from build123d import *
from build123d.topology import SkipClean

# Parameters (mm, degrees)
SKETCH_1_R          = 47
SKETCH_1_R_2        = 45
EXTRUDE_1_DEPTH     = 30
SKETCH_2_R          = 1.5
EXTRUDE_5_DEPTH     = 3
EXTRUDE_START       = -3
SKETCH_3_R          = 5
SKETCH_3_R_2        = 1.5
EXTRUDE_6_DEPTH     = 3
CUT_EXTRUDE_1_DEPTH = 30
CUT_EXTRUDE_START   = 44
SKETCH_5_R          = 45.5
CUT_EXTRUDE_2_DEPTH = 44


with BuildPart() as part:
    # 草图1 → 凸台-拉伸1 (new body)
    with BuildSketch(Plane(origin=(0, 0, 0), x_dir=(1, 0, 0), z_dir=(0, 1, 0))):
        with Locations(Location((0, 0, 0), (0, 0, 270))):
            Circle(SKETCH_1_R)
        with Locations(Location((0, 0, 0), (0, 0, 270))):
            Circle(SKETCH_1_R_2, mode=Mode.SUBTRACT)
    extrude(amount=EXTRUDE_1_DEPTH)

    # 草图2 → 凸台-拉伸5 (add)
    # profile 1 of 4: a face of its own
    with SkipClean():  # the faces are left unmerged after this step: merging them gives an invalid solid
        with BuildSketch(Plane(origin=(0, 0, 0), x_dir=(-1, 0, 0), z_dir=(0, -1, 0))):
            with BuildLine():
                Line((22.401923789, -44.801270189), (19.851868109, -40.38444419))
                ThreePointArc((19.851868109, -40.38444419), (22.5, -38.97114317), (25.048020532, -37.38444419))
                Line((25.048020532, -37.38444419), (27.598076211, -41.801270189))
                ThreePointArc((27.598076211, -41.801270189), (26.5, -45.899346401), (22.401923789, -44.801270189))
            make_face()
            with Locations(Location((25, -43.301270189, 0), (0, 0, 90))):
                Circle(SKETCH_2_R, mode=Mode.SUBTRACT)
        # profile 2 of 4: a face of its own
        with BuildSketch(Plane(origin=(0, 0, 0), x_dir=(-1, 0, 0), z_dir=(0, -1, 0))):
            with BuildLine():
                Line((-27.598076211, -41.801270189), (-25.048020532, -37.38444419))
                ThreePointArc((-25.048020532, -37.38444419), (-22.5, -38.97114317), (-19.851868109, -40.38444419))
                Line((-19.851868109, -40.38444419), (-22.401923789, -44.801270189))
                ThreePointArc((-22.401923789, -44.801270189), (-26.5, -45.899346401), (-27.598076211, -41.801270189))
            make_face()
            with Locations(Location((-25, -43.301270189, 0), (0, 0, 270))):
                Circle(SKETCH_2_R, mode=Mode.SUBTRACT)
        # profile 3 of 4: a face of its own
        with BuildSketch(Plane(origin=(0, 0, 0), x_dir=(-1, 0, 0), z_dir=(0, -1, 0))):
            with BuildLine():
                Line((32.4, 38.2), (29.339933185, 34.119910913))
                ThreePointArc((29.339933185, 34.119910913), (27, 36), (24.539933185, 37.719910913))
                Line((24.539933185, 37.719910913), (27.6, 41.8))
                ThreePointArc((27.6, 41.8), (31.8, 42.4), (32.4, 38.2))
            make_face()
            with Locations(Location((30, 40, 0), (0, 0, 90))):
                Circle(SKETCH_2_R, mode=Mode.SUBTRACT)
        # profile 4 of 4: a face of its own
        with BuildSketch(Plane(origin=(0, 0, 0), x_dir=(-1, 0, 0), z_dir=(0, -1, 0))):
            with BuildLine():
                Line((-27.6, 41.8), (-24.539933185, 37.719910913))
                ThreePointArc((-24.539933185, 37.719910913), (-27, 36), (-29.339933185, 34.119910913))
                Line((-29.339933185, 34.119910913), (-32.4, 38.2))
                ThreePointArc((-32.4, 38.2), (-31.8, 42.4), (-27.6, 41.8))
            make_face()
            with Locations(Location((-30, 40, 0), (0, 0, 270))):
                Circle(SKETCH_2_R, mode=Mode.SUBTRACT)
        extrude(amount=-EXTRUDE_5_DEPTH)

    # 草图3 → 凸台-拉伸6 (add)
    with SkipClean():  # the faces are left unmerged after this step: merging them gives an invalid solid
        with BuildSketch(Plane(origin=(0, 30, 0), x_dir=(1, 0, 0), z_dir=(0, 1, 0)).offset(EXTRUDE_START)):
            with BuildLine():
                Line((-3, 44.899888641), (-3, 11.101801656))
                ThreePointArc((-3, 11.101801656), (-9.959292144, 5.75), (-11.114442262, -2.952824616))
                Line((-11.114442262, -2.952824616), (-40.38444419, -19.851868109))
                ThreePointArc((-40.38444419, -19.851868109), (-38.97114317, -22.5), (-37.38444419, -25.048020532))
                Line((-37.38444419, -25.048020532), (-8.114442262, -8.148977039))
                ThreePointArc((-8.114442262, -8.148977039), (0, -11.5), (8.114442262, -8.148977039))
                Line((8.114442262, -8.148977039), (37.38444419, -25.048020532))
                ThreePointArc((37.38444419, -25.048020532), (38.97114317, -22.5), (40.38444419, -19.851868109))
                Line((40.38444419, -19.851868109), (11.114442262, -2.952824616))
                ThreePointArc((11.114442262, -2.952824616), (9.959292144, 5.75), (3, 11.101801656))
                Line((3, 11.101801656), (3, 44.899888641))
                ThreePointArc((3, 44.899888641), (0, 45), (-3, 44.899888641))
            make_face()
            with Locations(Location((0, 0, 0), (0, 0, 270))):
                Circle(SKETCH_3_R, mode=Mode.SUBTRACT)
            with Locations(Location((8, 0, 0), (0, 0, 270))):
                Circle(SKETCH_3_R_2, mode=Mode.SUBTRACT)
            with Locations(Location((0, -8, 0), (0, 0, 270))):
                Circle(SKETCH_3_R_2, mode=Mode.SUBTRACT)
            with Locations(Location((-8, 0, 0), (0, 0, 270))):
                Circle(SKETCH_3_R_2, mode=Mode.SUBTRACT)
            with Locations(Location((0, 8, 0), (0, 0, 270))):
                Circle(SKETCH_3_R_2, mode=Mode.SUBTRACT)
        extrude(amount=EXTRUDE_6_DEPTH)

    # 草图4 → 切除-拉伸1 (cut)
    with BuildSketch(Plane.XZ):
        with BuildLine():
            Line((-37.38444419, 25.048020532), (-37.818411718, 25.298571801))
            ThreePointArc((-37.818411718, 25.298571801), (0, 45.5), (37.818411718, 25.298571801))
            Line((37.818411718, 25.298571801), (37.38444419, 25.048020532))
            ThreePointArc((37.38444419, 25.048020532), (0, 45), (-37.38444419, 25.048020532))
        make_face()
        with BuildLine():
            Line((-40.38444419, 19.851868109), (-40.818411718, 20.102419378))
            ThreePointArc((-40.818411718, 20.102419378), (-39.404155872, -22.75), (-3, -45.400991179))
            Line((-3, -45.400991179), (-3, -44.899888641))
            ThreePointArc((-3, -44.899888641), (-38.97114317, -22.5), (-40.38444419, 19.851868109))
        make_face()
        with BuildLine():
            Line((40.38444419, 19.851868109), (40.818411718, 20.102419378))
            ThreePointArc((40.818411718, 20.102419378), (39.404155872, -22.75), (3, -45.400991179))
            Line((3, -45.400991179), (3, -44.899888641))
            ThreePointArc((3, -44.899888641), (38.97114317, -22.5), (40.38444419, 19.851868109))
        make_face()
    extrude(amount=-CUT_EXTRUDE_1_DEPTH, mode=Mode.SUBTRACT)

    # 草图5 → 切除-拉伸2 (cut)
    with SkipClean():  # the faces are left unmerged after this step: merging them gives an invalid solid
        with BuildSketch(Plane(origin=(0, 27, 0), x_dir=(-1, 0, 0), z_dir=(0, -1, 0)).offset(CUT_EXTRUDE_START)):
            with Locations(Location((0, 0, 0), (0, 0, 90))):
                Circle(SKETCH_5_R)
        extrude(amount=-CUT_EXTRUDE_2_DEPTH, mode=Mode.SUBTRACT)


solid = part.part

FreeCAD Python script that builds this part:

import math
import FreeCAD as App
import Part
import Sketcher
Q = App.Units.Quantity

doc = App.newDocument("Part")
params = doc.addObject("Spreadsheet::Sheet", "Params")
for row, (alias, value) in enumerate([
    ("sketch1_diameter", "94 mm"),
    ("sketch1_diameter2", "90 mm"),
    ("pad1_length", "30 mm"),
    ("sketch2_diameter", "3 mm"),
    ("sketch2_radius", "3 mm"),
    ("sketch2_radius2", "45 mm"),
    ("pad2_length", "3 mm"),
    ("sketch3_diameter", "3 mm"),
    ("sketch3_diameter2", "10 mm"),
    ("sketch3_radius", "45 mm"),
    ("sketch3_radius2", "11.5 mm"),
    ("pad3_length", "3 mm"),
    ("sketch4_radius", "45 mm"),
    ("sketch4_radius2", "45.5 mm"),
    ("pocket1_length", "30 mm"),
    ("sketch5_diameter", "91 mm"),
    ("pocket2_length", "44 mm"),
], start=1):
    params.set(f"A{row}", alias)
    params.set(f"B{row}", "=" + value)
    params.setAlias(f"B{row}", alias)

body = doc.addObject("PartDesign::Body", "Body")

# Sketch on XZ plane
sketch1 = doc.addObject("Sketcher::SketchObject", "Sketch")
body.addObject(sketch1)
sketch1.AttachmentSupport = (doc.XZ_Plane, [""])
sketch1.MapMode = "FlatFace"
sketch1.addGeometry([
    Part.Circle(App.Vector(0, 0, 0), App.Vector(0, 0, 1), 47),
    Part.Circle(App.Vector(0, 0, 0), App.Vector(0, 0, 1), 45),
], False)
sketch1.addConstraint([
    Sketcher.Constraint("Coincident", 0, 3, -1, 1),
    Sketcher.Constraint("Coincident", 1, 3, -1, 1),
    Sketcher.Constraint("Diameter", 0, 94.0),
    Sketcher.Constraint("Diameter", 1, 90.0),
])
sketch1.setExpression("Constraints[2]", "Params.sketch1_diameter")
sketch1.setExpression("Constraints[3]", "Params.sketch1_diameter2")
pad1 = doc.addObject("PartDesign::Pad", "Pad")
body.addObject(pad1)
pad1.Profile = sketch1
pad1.setExpression("Length", "Params.pad1_length")
pad1.Reversed = True

# Sketch on XZ plane
sketch2 = doc.addObject("Sketcher::SketchObject", "Sketch001")
body.addObject(sketch2)
sketch2.AttachmentSupport = (doc.XZ_Plane, [""])
sketch2.MapMode = "FlatFace"
sketch2.addGeometry([
    Part.LineSegment(App.Vector(-19.851868, 40.384444, 0), App.Vector(-22.401924, 44.80127, 0)),  # 0
    Part.ArcOfCircle(Part.Circle(App.Vector(-25, 43.30127, 0), App.Vector(0, 0, 1), 3), math.radians(30), math.radians(210)),  # 1
    Part.LineSegment(App.Vector(-27.598076, 41.80127, 0), App.Vector(-25.048021, 37.384444, 0)),  # 2
    Part.ArcOfCircle(Part.Circle(App.Vector(0, 0, 0), App.Vector(0, 0, 1), 45), math.radians(116.177446), math.radians(123.822554)),  # 3
    Part.Circle(App.Vector(-25, 43.30127, 0), App.Vector(0, 0, 1), 1.5),  # 4
    Part.LineSegment(App.Vector(25.048021, 37.384444, 0), App.Vector(27.598076, 41.80127, 0)),  # 5
    Part.ArcOfCircle(Part.Circle(App.Vector(25, 43.30127, 0), App.Vector(0, 0, 1), 3), math.radians(-30), math.radians(150)),  # 6
    Part.LineSegment(App.Vector(22.401924, 44.80127, 0), App.Vector(19.851868, 40.384444, 0)),  # 7
    Part.ArcOfCircle(Part.Circle(App.Vector(0, 0, 0), App.Vector(0, 0, 1), 45), math.radians(56.177446), math.radians(63.822554)),  # 8
    Part.Circle(App.Vector(25, 43.30127, 0), App.Vector(0, 0, 1), 1.5),  # 9
    Part.LineSegment(App.Vector(-29.339933, -34.119911, 0), App.Vector(-32.4, -38.2, 0)),  # 10
    Part.ArcOfCircle(Part.Circle(App.Vector(-30, -40, 0), App.Vector(0, 0, 1), 3), math.radians(143.130102), math.radians(323.130102)),  # 11
    Part.LineSegment(App.Vector(-27.6, -41.8, 0), App.Vector(-24.539933, -37.719911, 0)),  # 12
    Part.ArcOfCircle(Part.Circle(App.Vector(0, 0, 0), App.Vector(0, 0, 1), 45), math.radians(-130.692451), math.radians(-123.047344)),  # 13
    Part.Circle(App.Vector(-30, -40, 0), App.Vector(0, 0, 1), 1.5),  # 14
    Part.LineSegment(App.Vector(24.539933, -37.719911, 0), App.Vector(27.6, -41.8, 0)),  # 15
    Part.ArcOfCircle(Part.Circle(App.Vector(30, -40, 0), App.Vector(0, 0, 1), 3), math.radians(-143.130102), math.radians(36.869898)),  # 16
    Part.LineSegment(App.Vector(32.4, -38.2, 0), App.Vector(29.339933, -34.119911, 0)),  # 17
    Part.ArcOfCircle(Part.Circle(App.Vector(0, 0, 0), App.Vector(0, 0, 1), 45), math.radians(-56.952656), math.radians(-49.307549)),  # 18
    Part.Circle(App.Vector(30, -40, 0), App.Vector(0, 0, 1), 1.5),  # 19
], False)
sketch2.addConstraint([
    Sketcher.Constraint("Tangent", 0, 2, 1, 1),
    Sketcher.Constraint("Tangent", 1, 2, 2, 1),
    Sketcher.Constraint("Coincident", 2, 2, 3, 2),
    Sketcher.Constraint("Coincident", 3, 1, 0, 1),
    Sketcher.Constraint("Tangent", 5, 2, 6, 1),
    Sketcher.Constraint("Tangent", 6, 2, 7, 1),
    Sketcher.Constraint("Coincident", 7, 2, 8, 2),
    Sketcher.Constraint("Coincident", 8, 1, 5, 1),
    Sketcher.Constraint("Tangent", 10, 2, 11, 1),
    Sketcher.Constraint("Tangent", 11, 2, 12, 1),
    Sketcher.Constraint("Coincident", 12, 2, 13, 2),
    Sketcher.Constraint("Coincident", 13, 1, 10, 1),
    Sketcher.Constraint("Tangent", 15, 2, 16, 1),
    Sketcher.Constraint("Tangent", 16, 2, 17, 1),
    Sketcher.Constraint("Coincident", 17, 2, 18, 2),
    Sketcher.Constraint("Coincident", 18, 1, 15, 1),
    Sketcher.Constraint("Coincident", 3, 3, -1, 1),
    Sketcher.Constraint("Coincident", 8, 3, -1, 1),
    Sketcher.Constraint("Coincident", 13, 3, -1, 1),
    Sketcher.Constraint("Coincident", 18, 3, -1, 1),
    Sketcher.Constraint("Coincident", 4, 3, 1, 3),
    Sketcher.Constraint("Coincident", 9, 3, 6, 3),
    Sketcher.Constraint("Coincident", 14, 3, 11, 3),
    Sketcher.Constraint("Coincident", 19, 3, 16, 3),
    Sketcher.Constraint("Equal", 1, 6),
    Sketcher.Constraint("Equal", 3, 8),
    Sketcher.Constraint("Equal", 4, 9),
    Sketcher.Constraint("Equal", 6, 11),
    Sketcher.Constraint("Equal", 8, 13),
    Sketcher.Constraint("Equal", 9, 14),
    Sketcher.Constraint("Equal", 11, 16),
    Sketcher.Constraint("Equal", 13, 18),
    Sketcher.Constraint("Equal", 14, 19),
    Sketcher.Constraint("Symmetric", 1, 3, 6, 3, -2),
    Sketcher.Constraint("Symmetric", 11, 3, 16, 3, -2),
    Sketcher.Constraint("Parallel", 0, 2),
    Sketcher.Constraint("Parallel", 5, 7),
    Sketcher.Constraint("Parallel", 10, 12),
    Sketcher.Constraint("Parallel", 15, 17),
    Sketcher.Constraint("Horizontal", 1, 2, 5, 2),
    Sketcher.Constraint("Horizontal", 11, 2, 15, 2),
    Sketcher.Constraint("Equal", 0, 2),
    Sketcher.Constraint("Equal", 7, 10),
    Sketcher.Constraint("Equal", 10, 12),
    Sketcher.Constraint("Diameter", 4, 3.0),
    Sketcher.Constraint("Radius", 1, 3.0),
    Sketcher.Constraint("Radius", 3, 45.0),
    Sketcher.Constraint("Angle", 0, Q("120 deg")),
    Sketcher.Constraint("DistanceX", 1, 3, -1, 1, 25.0),
    Sketcher.Constraint("DistanceX", 11, 3, -1, 1, 30.0),
])
sketch2.setExpression("Constraints[44]", "Params.sketch2_diameter")
sketch2.setExpression("Constraints[45]", "Params.sketch2_radius")
sketch2.setExpression("Constraints[46]", "Params.sketch2_radius2")
pad2 = doc.addObject("PartDesign::Pad", "Pad001")
body.addObject(pad2)
pad2.Profile = sketch2
pad2.setExpression("Length", "Params.pad2_length")
pad2.Reversed = True

# Sketch on XZ plane
sketch3 = doc.addObject("Sketcher::SketchObject", "Sketch002")
body.addObject(sketch3)
sketch3.AttachmentSupport = (doc.XZ_Plane, [""])
sketch3.MapMode = "FlatFace"
sketch3.AttachmentOffset = App.Placement(App.Vector(0, 0, -27), App.Rotation())
sketch3.addGeometry([
    Part.LineSegment(App.Vector(-3, -44.899889, 0), App.Vector(-3, -11.101802, 0)),  # 0
    Part.ArcOfCircle(Part.Circle(App.Vector(0, 0, 0), App.Vector(0, 0, 1), 11.5), math.radians(165.121665), math.radians(254.878335)),  # 1
    Part.LineSegment(App.Vector(-11.114442, 2.952825, 0), App.Vector(-40.384444, 19.851868, 0)),  # 2
    Part.ArcOfCircle(Part.Circle(App.Vector(0, 0, 0), App.Vector(0, 0, 1), 45), math.radians(146.177446), math.radians(153.822554)),  # 3
    Part.LineSegment(App.Vector(-37.384444, 25.048021, 0), App.Vector(-8.114442, 8.148977, 0)),  # 4
    Part.ArcOfCircle(Part.Circle(App.Vector(0, 0, 0), App.Vector(0, 0, 1), 11.5), math.radians(45.121665), math.radians(134.878335)),  # 5
    Part.LineSegment(App.Vector(8.114442, 8.148977, 0), App.Vector(37.384444, 25.048021, 0)),  # 6
    Part.ArcOfCircle(Part.Circle(App.Vector(0, 0, 0), App.Vector(0, 0, 1), 45), math.radians(26.177446), math.radians(33.822554)),  # 7
    Part.LineSegment(App.Vector(40.384444, 19.851868, 0), App.Vector(11.114442, 2.952825, 0)),  # 8
    Part.ArcOfCircle(Part.Circle(App.Vector(0, 0, 0), App.Vector(0, 0, 1), 11.5), math.radians(-74.878335), math.radians(14.878335)),  # 9
    Part.LineSegment(App.Vector(3, -11.101802, 0), App.Vector(3, -44.899889, 0)),  # 10
    Part.ArcOfCircle(Part.Circle(App.Vector(0, 0, 0), App.Vector(0, 0, 1), 45), math.radians(-93.822554), math.radians(-86.177446)),  # 11
    Part.Circle(App.Vector(0, 8, 0), App.Vector(0, 0, 1), 1.5),  # 12
    Part.Circle(App.Vector(-8, 0, 0), App.Vector(0, 0, 1), 1.5),  # 13
    Part.Circle(App.Vector(0, 0, 0), App.Vector(0, 0, 1), 5),  # 14
    Part.Circle(App.Vector(8, 0, 0), App.Vector(0, 0, 1), 1.5),  # 15
    Part.Circle(App.Vector(0, -8, 0), App.Vector(0, 0, 1), 1.5),  # 16
], False)
sketch3.addConstraint([
    Sketcher.Constraint("Coincident", 0, 2, 1, 2),
    Sketcher.Constraint("Coincident", 1, 1, 2, 1),
    Sketcher.Constraint("Coincident", 2, 2, 3, 2),
    Sketcher.Constraint("Coincident", 3, 1, 4, 1),
    Sketcher.Constraint("Coincident", 4, 2, 5, 2),
    Sketcher.Constraint("Coincident", 5, 1, 6, 1),
    Sketcher.Constraint("Coincident", 6, 2, 7, 2),
    Sketcher.Constraint("Coincident", 7, 1, 8, 1),
    Sketcher.Constraint("Coincident", 8, 2, 9, 2),
    Sketcher.Constraint("Coincident", 9, 1, 10, 1),
    Sketcher.Constraint("Coincident", 10, 2, 11, 2),
    Sketcher.Constraint("Coincident", 11, 1, 0, 1),
    Sketcher.Constraint("Vertical", 0),
    Sketcher.Constraint("Vertical", 10),
    Sketcher.Constraint("Coincident", 1, 3, -1, 1),
    Sketcher.Constraint("Coincident", 3, 3, -1, 1),
    Sketcher.Constraint("Coincident", 5, 3, -1, 1),
    Sketcher.Constraint("Coincident", 7, 3, -1, 1),
    Sketcher.Constraint("Coincident", 9, 3, -1, 1),
    Sketcher.Constraint("Coincident", 11, 3, -1, 1),
    Sketcher.Constraint("Coincident", 14, 3, -1, 1),
    Sketcher.Constraint("Equal", 1, 5),
    Sketcher.Constraint("Equal", 3, 7),
    Sketcher.Constraint("Equal", 5, 9),
    Sketcher.Constraint("Equal", 7, 11),
    Sketcher.Constraint("Equal", 12, 13),
    Sketcher.Constraint("Equal", 13, 15),
    Sketcher.Constraint("Equal", 15, 16),
    Sketcher.Constraint("Symmetric", 13, 3, 15, 3, -1, 1),
    Sketcher.Constraint("Symmetric", 12, 3, 16, 3, -1, 1),
    Sketcher.Constraint("PointOnObject", 12, 3, -2),
    Sketcher.Constraint("PointOnObject", 13, 3, -1),
    Sketcher.Constraint("Parallel", 2, 4),
    Sketcher.Constraint("Parallel", 6, 8),
    Sketcher.Constraint("Horizontal", 4, 2, 5, 1),
    Sketcher.Constraint("Horizontal", 3, 1, 6, 2),
    Sketcher.Constraint("Horizontal", 2, 2, 7, 1),
    Sketcher.Constraint("Horizontal", 0, 2, 9, 1),
    Sketcher.Constraint("Equal", 2, 4),
    Sketcher.Constraint("Diameter", 12, 3.0),
    Sketcher.Constraint("Diameter", 14, 10.0),
    Sketcher.Constraint("Radius", 3, 45.0),
    Sketcher.Constraint("Radius", 1, 11.5),
    Sketcher.Constraint("Angle", 2, Q("150 deg")),
    Sketcher.Constraint("DistanceY", -1, 1, 12, 3, 8.0),
    Sketcher.Constraint("DistanceX", 13, 3, -1, 1, 8.0),
    Sketcher.Constraint("DistanceX", 0, 2, -1, 1, 3.0),
    Sketcher.Constraint("DistanceX", 2, 2, 3, 1, 3.0),
])
sketch3.setExpression("Constraints[39]", "Params.sketch3_diameter")
sketch3.setExpression("Constraints[40]", "Params.sketch3_diameter2")
sketch3.setExpression("Constraints[41]", "Params.sketch3_radius")
sketch3.setExpression("Constraints[42]", "Params.sketch3_radius2")
pad3 = doc.addObject("PartDesign::Pad", "Pad002")
body.addObject(pad3)
pad3.Profile = sketch3
pad3.setExpression("Length", "Params.pad3_length")
pad3.Reversed = True

# Sketch on XZ plane
sketch4 = doc.addObject("Sketcher::SketchObject", "Sketch003")
body.addObject(sketch4)
sketch4.AttachmentSupport = (doc.XZ_Plane, [""])
sketch4.MapMode = "FlatFace"
sketch4.addGeometry([
    Part.LineSegment(App.Vector(-37.818412, 25.298572, 0), App.Vector(-37.384444, 25.048021, 0)),  # 0
    Part.ArcOfCircle(Part.Circle(App.Vector(0, 0, 0), App.Vector(0, 0, 1), 45), math.radians(33.822554), math.radians(146.177446)),  # 1
    Part.LineSegment(App.Vector(37.384444, 25.048021, 0), App.Vector(37.818412, 25.298572, 0)),  # 2
    Part.ArcOfCircle(Part.Circle(App.Vector(0, 0, 0), App.Vector(0, 0, 1), 45.5), math.radians(33.780486), math.radians(146.219514)),  # 3
    Part.LineSegment(App.Vector(-40.384444, 19.851868, 0), App.Vector(-40.818412, 20.102419, 0)),  # 4
    Part.ArcOfCircle(Part.Circle(App.Vector(0, 0, 0), App.Vector(0, 0, 1), 45.5), math.radians(153.780486), math.radians(266.219514)),  # 5
    Part.LineSegment(App.Vector(-3, -45.400991, 0), App.Vector(-3, -44.899889, 0)),  # 6
    Part.ArcOfCircle(Part.Circle(App.Vector(0, 0, 0), App.Vector(0, 0, 1), 45), math.radians(153.822554), math.radians(266.177446)),  # 7
    Part.LineSegment(App.Vector(40.818412, 20.102419, 0), App.Vector(40.384444, 19.851868, 0)),  # 8
    Part.ArcOfCircle(Part.Circle(App.Vector(0, 0, 0), App.Vector(0, 0, 1), 45), math.radians(-86.177446), math.radians(26.177446)),  # 9
    Part.LineSegment(App.Vector(3, -44.899889, 0), App.Vector(3, -45.400991, 0)),  # 10
    Part.ArcOfCircle(Part.Circle(App.Vector(0, 0, 0), App.Vector(0, 0, 1), 45.5), math.radians(-86.219514), math.radians(26.219514)),  # 11
], False)
sketch4.addConstraint([
    Sketcher.Constraint("Coincident", 0, 2, 1, 2),
    Sketcher.Constraint("Coincident", 1, 1, 2, 1),
    Sketcher.Constraint("Coincident", 2, 2, 3, 1),
    Sketcher.Constraint("Coincident", 3, 2, 0, 1),
    Sketcher.Constraint("Coincident", 4, 2, 5, 1),
    Sketcher.Constraint("Coincident", 5, 2, 6, 1),
    Sketcher.Constraint("Coincident", 6, 2, 7, 2),
    Sketcher.Constraint("Coincident", 7, 1, 4, 1),
    Sketcher.Constraint("Coincident", 8, 2, 9, 2),
    Sketcher.Constraint("Coincident", 9, 1, 10, 1),
    Sketcher.Constraint("Coincident", 10, 2, 11, 1),
    Sketcher.Constraint("Coincident", 11, 2, 8, 1),
    Sketcher.Constraint("Vertical", 6),
    Sketcher.Constraint("Vertical", 10),
    Sketcher.Constraint("Coincident", 1, 3, -1, 1),
    Sketcher.Constraint("Coincident", 3, 3, -1, 1),
    Sketcher.Constraint("Coincident", 5, 3, -1, 1),
    Sketcher.Constraint("Coincident", 7, 3, -1, 1),
    Sketcher.Constraint("Coincident", 9, 3, -1, 1),
    Sketcher.Constraint("Coincident", 11, 3, -1, 1),
    Sketcher.Constraint("Equal", 3, 5),
    Sketcher.Constraint("Equal", 1, 7),
    Sketcher.Constraint("Equal", 7, 9),
    Sketcher.Constraint("Equal", 5, 11),
    Sketcher.Constraint("Parallel", 0, 4),
    Sketcher.Constraint("Parallel", 2, 8),
    Sketcher.Constraint("Horizontal", 0, 2, 1, 1),
    Sketcher.Constraint("Horizontal", 2, 2, 3, 2),
    Sketcher.Constraint("Horizontal", 7, 1, 8, 2),
    Sketcher.Constraint("Horizontal", 6, 2, 9, 1),
    Sketcher.Constraint("Equal", 2, 4),
    Sketcher.Constraint("Radius", 1, 45.0),
    Sketcher.Constraint("Radius", 3, 45.5),
    Sketcher.Constraint("Angle", 0, Q("-30 deg")),
    Sketcher.Constraint("DistanceX", 5, 2, -1, 1, 3.0),
    Sketcher.Constraint("DistanceX", 4, 2, 3, 2, 3.0),
])
sketch4.setExpression("Constraints[31]", "Params.sketch4_radius")
sketch4.setExpression("Constraints[32]", "Params.sketch4_radius2")
pocket1 = doc.addObject("PartDesign::Pocket", "Pocket")
body.addObject(pocket1)
pocket1.Profile = sketch4
pocket1.setExpression("Length", "Params.pocket1_length")

# Sketch on XZ plane
sketch5 = doc.addObject("Sketcher::SketchObject", "Sketch004")
body.addObject(sketch5)
sketch5.AttachmentSupport = (doc.XZ_Plane, [""])
sketch5.MapMode = "FlatFace"
sketch5.AttachmentOffset = App.Placement(App.Vector(0, 0, 17), App.Rotation())
sketch5.addGeometry(Part.Circle(App.Vector(0, 0, 0), App.Vector(0, 0, 1), 45.5), False)
sketch5.addConstraint([
    Sketcher.Constraint("Coincident", 0, 3, -1, 1),
    Sketcher.Constraint("Diameter", 0, 91.0),
])
sketch5.setExpression("Constraints[1]", "Params.sketch5_diameter")
pocket2 = doc.addObject("PartDesign::Pocket", "Pocket001")
body.addObject(pocket2)
pocket2.Profile = sketch5
pocket2.setExpression("Length", "Params.pocket2_length")

doc.recompute()
